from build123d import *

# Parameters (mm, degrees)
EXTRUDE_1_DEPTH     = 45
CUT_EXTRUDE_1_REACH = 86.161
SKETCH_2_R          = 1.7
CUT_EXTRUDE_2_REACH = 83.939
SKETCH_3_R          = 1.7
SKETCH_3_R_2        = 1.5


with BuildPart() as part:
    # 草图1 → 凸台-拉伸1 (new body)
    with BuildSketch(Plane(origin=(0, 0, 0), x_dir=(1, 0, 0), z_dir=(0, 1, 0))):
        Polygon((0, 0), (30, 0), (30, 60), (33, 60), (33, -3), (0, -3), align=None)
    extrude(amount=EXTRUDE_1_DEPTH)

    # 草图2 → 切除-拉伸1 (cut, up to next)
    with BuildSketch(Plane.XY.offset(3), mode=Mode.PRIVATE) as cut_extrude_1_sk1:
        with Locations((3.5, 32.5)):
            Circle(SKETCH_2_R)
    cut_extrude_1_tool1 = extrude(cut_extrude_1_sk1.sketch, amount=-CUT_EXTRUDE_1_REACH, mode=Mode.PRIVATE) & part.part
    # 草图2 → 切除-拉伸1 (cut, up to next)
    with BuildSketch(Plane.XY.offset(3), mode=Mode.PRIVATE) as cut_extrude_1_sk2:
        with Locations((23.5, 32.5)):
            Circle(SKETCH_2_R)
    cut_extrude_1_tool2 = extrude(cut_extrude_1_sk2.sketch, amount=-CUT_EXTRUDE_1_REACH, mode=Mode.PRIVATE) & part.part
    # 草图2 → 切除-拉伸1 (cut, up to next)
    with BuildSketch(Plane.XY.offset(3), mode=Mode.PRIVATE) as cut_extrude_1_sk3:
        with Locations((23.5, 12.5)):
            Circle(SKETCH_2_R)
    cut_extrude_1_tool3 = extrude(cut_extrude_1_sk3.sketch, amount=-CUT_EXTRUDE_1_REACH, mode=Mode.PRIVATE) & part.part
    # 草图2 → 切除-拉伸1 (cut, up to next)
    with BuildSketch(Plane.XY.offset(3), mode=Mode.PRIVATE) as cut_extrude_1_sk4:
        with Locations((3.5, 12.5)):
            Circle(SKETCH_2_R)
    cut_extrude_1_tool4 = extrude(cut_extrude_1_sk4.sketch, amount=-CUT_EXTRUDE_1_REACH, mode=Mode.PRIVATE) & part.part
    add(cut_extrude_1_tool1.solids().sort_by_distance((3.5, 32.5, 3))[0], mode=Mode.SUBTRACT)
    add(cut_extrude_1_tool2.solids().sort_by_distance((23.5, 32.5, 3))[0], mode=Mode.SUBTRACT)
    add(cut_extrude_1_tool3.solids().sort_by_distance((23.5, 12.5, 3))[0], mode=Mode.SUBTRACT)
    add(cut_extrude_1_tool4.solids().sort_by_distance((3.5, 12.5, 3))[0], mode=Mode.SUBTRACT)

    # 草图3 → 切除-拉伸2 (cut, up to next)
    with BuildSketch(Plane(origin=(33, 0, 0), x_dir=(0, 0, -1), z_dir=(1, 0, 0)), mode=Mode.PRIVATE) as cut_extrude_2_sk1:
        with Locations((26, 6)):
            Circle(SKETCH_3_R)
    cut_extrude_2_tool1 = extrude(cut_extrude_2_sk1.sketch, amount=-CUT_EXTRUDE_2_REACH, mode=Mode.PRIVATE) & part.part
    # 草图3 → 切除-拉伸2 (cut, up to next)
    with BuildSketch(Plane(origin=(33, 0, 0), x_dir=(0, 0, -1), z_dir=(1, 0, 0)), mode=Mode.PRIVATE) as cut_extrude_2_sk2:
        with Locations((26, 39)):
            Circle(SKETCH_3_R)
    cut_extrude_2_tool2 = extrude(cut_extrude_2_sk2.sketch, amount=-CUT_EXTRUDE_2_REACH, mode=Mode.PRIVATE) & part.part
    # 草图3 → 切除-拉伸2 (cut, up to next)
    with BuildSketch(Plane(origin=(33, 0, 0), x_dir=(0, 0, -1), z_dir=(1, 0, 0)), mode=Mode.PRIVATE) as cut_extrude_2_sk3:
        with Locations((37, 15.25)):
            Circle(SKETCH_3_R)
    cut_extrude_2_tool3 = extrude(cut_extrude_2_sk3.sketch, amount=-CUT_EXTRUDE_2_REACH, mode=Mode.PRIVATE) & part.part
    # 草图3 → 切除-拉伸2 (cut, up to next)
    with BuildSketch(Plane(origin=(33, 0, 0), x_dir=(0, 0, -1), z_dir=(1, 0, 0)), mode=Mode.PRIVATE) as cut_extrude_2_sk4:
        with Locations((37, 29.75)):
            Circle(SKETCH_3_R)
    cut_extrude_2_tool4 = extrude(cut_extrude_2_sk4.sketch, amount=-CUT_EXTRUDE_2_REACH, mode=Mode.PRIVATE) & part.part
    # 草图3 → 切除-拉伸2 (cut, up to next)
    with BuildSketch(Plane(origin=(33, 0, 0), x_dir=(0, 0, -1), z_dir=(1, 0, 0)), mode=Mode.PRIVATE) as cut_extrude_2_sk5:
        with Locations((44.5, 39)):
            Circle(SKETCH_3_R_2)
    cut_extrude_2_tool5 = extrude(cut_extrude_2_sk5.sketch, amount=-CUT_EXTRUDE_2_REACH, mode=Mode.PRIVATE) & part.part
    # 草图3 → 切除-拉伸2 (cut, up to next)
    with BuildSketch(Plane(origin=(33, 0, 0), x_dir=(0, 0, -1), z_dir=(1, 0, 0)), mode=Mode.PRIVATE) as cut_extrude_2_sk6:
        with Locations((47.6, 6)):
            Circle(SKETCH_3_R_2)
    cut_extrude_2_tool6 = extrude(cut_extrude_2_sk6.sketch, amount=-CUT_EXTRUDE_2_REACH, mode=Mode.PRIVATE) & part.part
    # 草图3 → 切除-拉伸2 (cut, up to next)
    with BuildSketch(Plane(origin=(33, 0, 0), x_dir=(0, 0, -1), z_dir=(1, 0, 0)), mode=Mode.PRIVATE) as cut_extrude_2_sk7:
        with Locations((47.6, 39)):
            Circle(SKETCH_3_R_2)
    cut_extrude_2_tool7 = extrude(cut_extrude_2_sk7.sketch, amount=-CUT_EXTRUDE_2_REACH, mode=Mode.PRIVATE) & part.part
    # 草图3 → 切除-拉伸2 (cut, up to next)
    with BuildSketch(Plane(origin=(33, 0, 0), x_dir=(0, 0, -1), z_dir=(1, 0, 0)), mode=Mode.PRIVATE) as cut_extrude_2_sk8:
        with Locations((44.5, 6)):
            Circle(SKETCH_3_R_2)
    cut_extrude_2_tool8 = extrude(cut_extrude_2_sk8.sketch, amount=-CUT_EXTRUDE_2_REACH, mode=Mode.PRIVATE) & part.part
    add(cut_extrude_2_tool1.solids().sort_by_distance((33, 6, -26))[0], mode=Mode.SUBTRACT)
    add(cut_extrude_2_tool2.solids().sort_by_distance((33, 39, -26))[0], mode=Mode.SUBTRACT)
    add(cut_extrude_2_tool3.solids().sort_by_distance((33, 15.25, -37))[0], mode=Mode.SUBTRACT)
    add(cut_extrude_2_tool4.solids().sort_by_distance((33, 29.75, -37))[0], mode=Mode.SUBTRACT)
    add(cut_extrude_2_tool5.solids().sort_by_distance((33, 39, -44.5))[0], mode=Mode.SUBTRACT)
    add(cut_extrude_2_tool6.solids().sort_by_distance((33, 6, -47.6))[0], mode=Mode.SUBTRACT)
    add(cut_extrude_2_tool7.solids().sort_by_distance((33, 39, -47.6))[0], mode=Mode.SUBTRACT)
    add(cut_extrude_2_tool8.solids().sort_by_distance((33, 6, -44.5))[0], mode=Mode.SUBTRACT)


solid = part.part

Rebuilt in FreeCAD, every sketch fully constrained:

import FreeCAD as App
import Part
import Sketcher
from FreeCAD import Vector
Q = App.Units.Quantity


def add_polygon(sketch, points):
    """Adds a closed chain of lines whose ends are joined by coincident constraints."""
    first, n = sketch.GeometryCount, len(points)
    for a, b in zip(points, points[1:] + points[:1]):
        sketch.addGeometry(Part.LineSegment(App.Vector(*a, 0), App.Vector(*b, 0)), False)
    for i in range(n):
        sketch.addConstraint(Sketcher.Constraint("Coincident", first + i, 2, first + (i + 1) % n, 1))

doc = App.newDocument("Part")
body = doc.addObject("PartDesign::Body", "Body")

sketch1 = doc.addObject("Sketcher::SketchObject", "Sketch")
body.addObject(sketch1)
sketch1.AttachmentSupport = (doc.XZ_Plane, [""])
sketch1.MapMode = "FlatFace"
add_polygon(sketch1, [(30, 0), (0, 0), (0, 3), (33, 3), (33, -60), (30, -60)])
sketch1.addConstraint(Sketcher.Constraint("Horizontal", 0))
sketch1.addConstraint(Sketcher.Constraint("Vertical", 1))
sketch1.addConstraint(Sketcher.Constraint("Horizontal", 2))
sketch1.addConstraint(Sketcher.Constraint("Vertical", 3))
sketch1.addConstraint(Sketcher.Constraint("Horizontal", 4))
sketch1.addConstraint(Sketcher.Constraint("Vertical", 5))
sketch1.addConstraint(Sketcher.Constraint("Coincident", 0, 2, -1, 1))
sketch1.addConstraint(Sketcher.Constraint("Equal", 4, 1))
sketch1.addConstraint(Sketcher.Constraint("DistanceX", 0, 2, 0, 1, Q("30 mm")))
sketch1.addConstraint(Sketcher.Constraint("DistanceX", 2, 1, 2, 2, Q("33 mm")))
sketch1.addConstraint(Sketcher.Constraint("DistanceY", 3, 2, 3, 1, Q("63 mm")))
pad1 = doc.addObject("PartDesign::Pad", "Pad")
body.addObject(pad1)
pad1.Profile = sketch1
pad1.Length = 45
pad1.Reversed = True

sketch2 = doc.addObject("Sketcher::SketchObject", "Sketch001")
body.addObject(sketch2)
sketch2.AttachmentSupport = (doc.XY_Plane, [""])
sketch2.MapMode = "FlatFace"
sketch2.AttachmentOffset = App.Placement(Vector(0, 0, 3), App.Rotation())
sketch2.addGeometry(Part.Circle(Vector(3.5, 32.5, 0), Vector(0, 0, 1), 1.7), False)
sketch2.addConstraint(Sketcher.Constraint("Diameter", 0, Q("3.4 mm")))
sketch2.addConstraint(Sketcher.Constraint("DistanceX", -1, 1, 0, 3, Q("3.5 mm")))
sketch2.addConstraint(Sketcher.Constraint("DistanceY", -1, 1, 0, 3, Q("32.5 mm")))
pocket1 = doc.addObject("PartDesign::Pocket", "Pocket")
body.addObject(pocket1)
pocket1.Profile = sketch2
pocket1.Type = "UpToFirst"

sketch3 = doc.addObject("Sketcher::SketchObject", "Sketch002")
body.addObject(sketch3)
sketch3.AttachmentSupport = (doc.XY_Plane, [""])
sketch3.MapMode = "FlatFace"
sketch3.AttachmentOffset = App.Placement(Vector(0, 0, 3), App.Rotation())
sketch3.addGeometry(Part.Circle(Vector(23.5, 32.5, 0), Vector(0, 0, 1), 1.7), False)
sketch3.addConstraint(Sketcher.Constraint("Diameter", 0, Q("3.4 mm")))
sketch3.addConstraint(Sketcher.Constraint("DistanceX", -1, 1, 0, 3, Q("23.5 mm")))
sketch3.addConstraint(Sketcher.Constraint("DistanceY", -1, 1, 0, 3, Q("32.5 mm")))
pocket2 = doc.addObject("PartDesign::Pocket", "Pocket001")
body.addObject(pocket2)
pocket2.Profile = sketch3
pocket2.Type = "UpToFirst"

sketch4 = doc.addObject("Sketcher::SketchObject", "Sketch003")
body.addObject(sketch4)
sketch4.AttachmentSupport = (doc.XY_Plane, [""])
sketch4.MapMode = "FlatFace"
sketch4.AttachmentOffset = App.Placement(Vector(0, 0, 3), App.Rotation())
sketch4.addGeometry(Part.Circle(Vector(23.5, 12.5, 0), Vector(0, 0, 1), 1.7), False)
sketch4.addConstraint(Sketcher.Constraint("Diameter", 0, Q("3.4 mm")))
sketch4.addConstraint(Sketcher.Constraint("DistanceX", -1, 1, 0, 3, Q("23.5 mm")))
sketch4.addConstraint(Sketcher.Constraint("DistanceY", -1, 1, 0, 3, Q("12.5 mm")))
pocket3 = doc.addObject("PartDesign::Pocket", "Pocket002")
body.addObject(pocket3)
pocket3.Profile = sketch4
pocket3.Type = "UpToFirst"

sketch5 = doc.addObject("Sketcher::SketchObject", "Sketch004")
body.addObject(sketch5)
sketch5.AttachmentSupport = (doc.XY_Plane, [""])
sketch5.MapMode = "FlatFace"
sketch5.AttachmentOffset = App.Placement(Vector(0, 0, 3), App.Rotation())
sketch5.addGeometry(Part.Circle(Vector(3.5, 12.5, 0), Vector(0, 0, 1), 1.7), False)
sketch5.addConstraint(Sketcher.Constraint("Diameter", 0, Q("3.4 mm")))
sketch5.addConstraint(Sketcher.Constraint("DistanceX", -1, 1, 0, 3, Q("3.5 mm")))
sketch5.addConstraint(Sketcher.Constraint("DistanceY", -1, 1, 0, 3, Q("12.5 mm")))
pocket4 = doc.addObject("PartDesign::Pocket", "Pocket003")
body.addObject(pocket4)
pocket4.Profile = sketch5
pocket4.Type = "UpToFirst"

sketch6 = doc.addObject("Sketcher::SketchObject", "Sketch005")
body.addObject(sketch6)
sketch6.AttachmentSupport = (doc.YZ_Plane, [""])
sketch6.MapMode = "FlatFace"
sketch6.AttachmentOffset = App.Placement(Vector(0, 0, 33), App.Rotation())
sketch6.addGeometry(Part.Circle(Vector(6, -26, 0), Vector(0, 0, 1), 1.7), False)
sketch6.addConstraint(Sketcher.Constraint("Diameter", 0, Q("3.4 mm")))
sketch6.addConstraint(Sketcher.Constraint("DistanceX", -1, 1, 0, 3, Q("6 mm")))
sketch6.addConstraint(Sketcher.Constraint("DistanceY", 0, 3, -1, 1, Q("26 mm")))
pocket5 = doc.addObject("PartDesign::Pocket", "Pocket004")
body.addObject(pocket5)
pocket5.Profile = sketch6
pocket5.Type = "UpToFirst"

sketch7 = doc.addObject("Sketcher::SketchObject", "Sketch006")
body.addObject(sketch7)
sketch7.AttachmentSupport = (doc.YZ_Plane, [""])
sketch7.MapMode = "FlatFace"
sketch7.AttachmentOffset = App.Placement(Vector(0, 0, 33), App.Rotation())
sketch7.addGeometry(Part.Circle(Vector(39, -26, 0), Vector(0, 0, 1), 1.7), False)
sketch7.addConstraint(Sketcher.Constraint("Diameter", 0, Q("3.4 mm")))
sketch7.addConstraint(Sketcher.Constraint("DistanceX", -1, 1, 0, 3, Q("39 mm")))
sketch7.addConstraint(Sketcher.Constraint("DistanceY", 0, 3, -1, 1, Q("26 mm")))
pocket6 = doc.addObject("PartDesign::Pocket", "Pocket005")
body.addObject(pocket6)
pocket6.Profile = sketch7
pocket6.Type = "UpToFirst"

sketch8 = doc.addObject("Sketcher::SketchObject", "Sketch007")
body.addObject(sketch8)
sketch8.AttachmentSupport = (doc.YZ_Plane, [""])
sketch8.MapMode = "FlatFace"
sketch8.AttachmentOffset = App.Placement(Vector(0, 0, 33), App.Rotation())
sketch8.addGeometry(Part.Circle(Vector(15.2, -37, 0), Vector(0, 0, 1), 1.7), False)
sketch8.addConstraint(Sketcher.Constraint("Diameter", 0, Q("3.4 mm")))
sketch8.addConstraint(Sketcher.Constraint("DistanceY", 0, 3, -1, 1, Q("37 mm")))
sketch8.addConstraint(Sketcher.Constraint("DistanceX", -1, 1, 0, 3, Q("15.25 mm")))
pocket7 = doc.addObject("PartDesign::Pocket", "Pocket006")
body.addObject(pocket7)
pocket7.Profile = sketch8
pocket7.Type = "UpToFirst"

sketch9 = doc.addObject("Sketcher::SketchObject", "Sketch008")
body.addObject(sketch9)
sketch9.AttachmentSupport = (doc.YZ_Plane, [""])
sketch9.MapMode = "FlatFace"
sketch9.AttachmentOffset = App.Placement(Vector(0, 0, 33), App.Rotation())
sketch9.addGeometry(Part.Circle(Vector(29.8, -37, 0), Vector(0, 0, 1), 1.7), False)
sketch9.addConstraint(Sketcher.Constraint("Diameter", 0, Q("3.4 mm")))
sketch9.addConstraint(Sketcher.Constraint("DistanceY", 0, 3, -1, 1, Q("37 mm")))
sketch9.addConstraint(Sketcher.Constraint("DistanceX", -1, 1, 0, 3, Q("29.75 mm")))
pocket8 = doc.addObject("PartDesign::Pocket", "Pocket007")
body.addObject(pocket8)
pocket8.Profile = sketch9
pocket8.Type = "UpToFirst"

sketch10 = doc.addObject("Sketcher::SketchObject", "Sketch009")
body.addObject(sketch10)
sketch10.AttachmentSupport = (doc.YZ_Plane, [""])
sketch10.MapMode = "FlatFace"
sketch10.AttachmentOffset = App.Placement(Vector(0, 0, 33), App.Rotation())
sketch10.addGeometry(Part.Circle(Vector(39, -44.5, 0), Vector(0, 0, 1), 1.5), False)
sketch10.addConstraint(Sketcher.Constraint("Diameter", 0, Q("3 mm")))
sketch10.addConstraint(Sketcher.Constraint("DistanceX", -1, 1, 0, 3, Q("39 mm")))
sketch10.addConstraint(Sketcher.Constraint("DistanceY", 0, 3, -1, 1, Q("44.5 mm")))
pocket9 = doc.addObject("PartDesign::Pocket", "Pocket008")
body.addObject(pocket9)
pocket9.Profile = sketch10
pocket9.Type = "UpToFirst"

sketch11 = doc.addObject("Sketcher::SketchObject", "Sketch010")
body.addObject(sketch11)
sketch11.AttachmentSupport = (doc.YZ_Plane, [""])
sketch11.MapMode = "FlatFace"
sketch11.AttachmentOffset = App.Placement(Vector(0, 0, 33), App.Rotation())
sketch11.addGeometry(Part.Circle(Vector(6, -47.6, 0), Vector(0, 0, 1), 1.5), False)
sketch11.addConstraint(Sketcher.Constraint("Diameter", 0, Q("3 mm")))
sketch11.addConstraint(Sketcher.Constraint("DistanceX", -1, 1, 0, 3, Q("6 mm")))
sketch11.addConstraint(Sketcher.Constraint("DistanceY", 0, 3, -1, 1, Q("47.6 mm")))
pocket10 = doc.addObject("PartDesign::Pocket", "Pocket009")
body.addObject(pocket10)
pocket10.Profile = sketch11
pocket10.Type = "UpToFirst"

sketch12 = doc.addObject("Sketcher::SketchObject", "Sketch011")
body.addObject(sketch12)
sketch12.AttachmentSupport = (doc.YZ_Plane, [""])
sketch12.MapMode = "FlatFace"
sketch12.AttachmentOffset = App.Placement(Vector(0, 0, 33), App.Rotation())
sketch12.addGeometry(Part.Circle(Vector(39, -47.6, 0), Vector(0, 0, 1), 1.5), False)
sketch12.addConstraint(Sketcher.Constraint("Diameter", 0, Q("3 mm")))
sketch12.addConstraint(Sketcher.Constraint("DistanceX", -1, 1, 0, 3, Q("39 mm")))
sketch12.addConstraint(Sketcher.Constraint("DistanceY", 0, 3, -1, 1, Q("47.6 mm")))
pocket11 = doc.addObject("PartDesign::Pocket", "Pocket010")
body.addObject(pocket11)
pocket11.Profile = sketch12
pocket11.Type = "UpToFirst"

sketch13 = doc.addObject("Sketcher::SketchObject", "Sketch012")
body.addObject(sketch13)
sketch13.AttachmentSupport = (doc.YZ_Plane, [""])
sketch13.MapMode = "FlatFace"
sketch13.AttachmentOffset = App.Placement(Vector(0, 0, 33), App.Rotation())
sketch13.addGeometry(Part.Circle(Vector(6, -44.5, 0), Vector(0, 0, 1), 1.5), False)
sketch13.addConstraint(Sketcher.Constraint("Diameter", 0, Q("3 mm")))
sketch13.addConstraint(Sketcher.Constraint("DistanceX", -1, 1, 0, 3, Q("6 mm")))
sketch13.addConstraint(Sketcher.Constraint("DistanceY", 0, 3, -1, 1, Q("44.5 mm")))
pocket12 = doc.addObject("PartDesign::Pocket", "Pocket011")
body.addObject(pocket12)
pocket12.Profile = sketch13
pocket12.Type = "UpToFirst"

doc.recompute()
